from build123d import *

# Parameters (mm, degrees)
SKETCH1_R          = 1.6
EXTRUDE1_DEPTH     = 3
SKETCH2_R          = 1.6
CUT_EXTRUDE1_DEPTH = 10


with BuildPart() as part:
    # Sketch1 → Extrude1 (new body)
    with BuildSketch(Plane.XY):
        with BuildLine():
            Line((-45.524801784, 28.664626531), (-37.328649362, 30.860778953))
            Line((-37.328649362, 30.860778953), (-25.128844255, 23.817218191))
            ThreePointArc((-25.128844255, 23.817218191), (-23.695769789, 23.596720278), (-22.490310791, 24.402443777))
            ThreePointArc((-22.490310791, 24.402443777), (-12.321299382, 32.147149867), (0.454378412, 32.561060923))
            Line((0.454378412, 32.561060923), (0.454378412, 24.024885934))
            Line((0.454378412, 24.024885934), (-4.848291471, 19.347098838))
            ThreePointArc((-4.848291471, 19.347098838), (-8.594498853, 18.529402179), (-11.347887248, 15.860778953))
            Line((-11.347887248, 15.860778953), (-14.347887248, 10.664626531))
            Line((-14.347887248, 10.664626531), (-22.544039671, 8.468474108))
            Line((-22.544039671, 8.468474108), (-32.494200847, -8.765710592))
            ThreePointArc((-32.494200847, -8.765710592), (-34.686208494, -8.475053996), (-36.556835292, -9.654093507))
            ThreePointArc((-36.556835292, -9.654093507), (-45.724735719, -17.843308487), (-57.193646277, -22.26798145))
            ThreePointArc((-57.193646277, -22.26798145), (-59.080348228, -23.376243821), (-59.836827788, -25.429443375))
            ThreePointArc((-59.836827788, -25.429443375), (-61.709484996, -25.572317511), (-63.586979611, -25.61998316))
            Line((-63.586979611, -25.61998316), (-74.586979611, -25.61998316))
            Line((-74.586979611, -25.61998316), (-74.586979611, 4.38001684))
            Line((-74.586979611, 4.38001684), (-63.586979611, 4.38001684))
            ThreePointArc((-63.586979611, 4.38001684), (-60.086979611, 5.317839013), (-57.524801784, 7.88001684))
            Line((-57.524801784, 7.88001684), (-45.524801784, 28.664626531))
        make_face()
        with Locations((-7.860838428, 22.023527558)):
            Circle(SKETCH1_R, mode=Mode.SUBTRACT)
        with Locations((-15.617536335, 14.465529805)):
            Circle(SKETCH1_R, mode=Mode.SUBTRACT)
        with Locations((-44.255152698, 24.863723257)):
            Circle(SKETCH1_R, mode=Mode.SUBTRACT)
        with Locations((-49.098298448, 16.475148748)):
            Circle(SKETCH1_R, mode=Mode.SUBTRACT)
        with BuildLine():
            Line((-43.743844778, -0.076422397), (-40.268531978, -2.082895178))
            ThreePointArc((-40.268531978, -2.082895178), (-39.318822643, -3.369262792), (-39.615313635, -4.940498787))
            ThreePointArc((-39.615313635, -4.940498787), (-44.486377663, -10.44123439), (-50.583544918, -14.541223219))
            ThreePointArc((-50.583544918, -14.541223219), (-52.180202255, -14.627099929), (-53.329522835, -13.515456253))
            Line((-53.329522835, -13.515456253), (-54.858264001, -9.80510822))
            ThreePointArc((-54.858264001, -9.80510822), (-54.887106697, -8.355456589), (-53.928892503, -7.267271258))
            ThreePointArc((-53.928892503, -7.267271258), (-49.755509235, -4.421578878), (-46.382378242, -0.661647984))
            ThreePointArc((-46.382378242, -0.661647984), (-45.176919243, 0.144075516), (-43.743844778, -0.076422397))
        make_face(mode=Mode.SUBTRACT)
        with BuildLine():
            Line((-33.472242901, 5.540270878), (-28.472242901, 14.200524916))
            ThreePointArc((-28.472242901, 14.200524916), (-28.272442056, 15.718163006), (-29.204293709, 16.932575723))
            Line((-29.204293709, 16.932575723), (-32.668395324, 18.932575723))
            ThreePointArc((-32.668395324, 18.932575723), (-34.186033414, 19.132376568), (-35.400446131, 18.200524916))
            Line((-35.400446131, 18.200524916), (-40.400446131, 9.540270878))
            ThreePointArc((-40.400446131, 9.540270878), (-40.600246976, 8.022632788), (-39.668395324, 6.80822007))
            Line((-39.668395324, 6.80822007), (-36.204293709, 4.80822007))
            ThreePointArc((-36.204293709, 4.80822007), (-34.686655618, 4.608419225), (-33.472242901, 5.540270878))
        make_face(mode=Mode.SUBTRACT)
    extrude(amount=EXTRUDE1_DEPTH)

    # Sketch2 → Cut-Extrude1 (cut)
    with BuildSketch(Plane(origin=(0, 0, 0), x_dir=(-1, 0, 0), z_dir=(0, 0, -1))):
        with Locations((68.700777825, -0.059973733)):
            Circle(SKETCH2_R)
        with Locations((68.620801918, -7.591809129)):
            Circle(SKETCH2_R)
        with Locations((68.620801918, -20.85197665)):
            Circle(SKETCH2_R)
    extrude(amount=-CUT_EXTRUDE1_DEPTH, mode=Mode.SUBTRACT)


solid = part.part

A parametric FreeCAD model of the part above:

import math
import FreeCAD as App
import Part
import Sketcher
Q = App.Units.Quantity

doc = App.newDocument("Part")
body = doc.addObject("PartDesign::Body", "Body")

sketch1 = doc.addObject("Sketcher::SketchObject", "Sketch")
body.addObject(sketch1)
sketch1.AttachmentSupport = (doc.XY_Plane, [""])
sketch1.MapMode = "FlatFace"
sketch1.addGeometry(Part.LineSegment(App.Vector(-37.328649, 30.860779, 0), App.Vector(-45.524802, 28.664627, 0)), False)
sketch1.addGeometry(Part.LineSegment(App.Vector(-45.524802, 28.664627, 0), App.Vector(-57.524802, 7.880017, 0)), False)
sketch1.addGeometry(Part.ArcOfCircle(Part.Circle(App.Vector(-63.58698, 11.380017, 0), App.Vector(0, 0, 1), 7), math.radians(-90), math.radians(-30)), False)
sketch1.addGeometry(Part.LineSegment(App.Vector(-63.58698, 4.380017, 0), App.Vector(-74.58698, 4.380017, 0)), False)
sketch1.addGeometry(Part.LineSegment(App.Vector(-74.58698, 4.380017, 0), App.Vector(-74.58698, -25.619983, 0)), False)
sketch1.addGeometry(Part.LineSegment(App.Vector(-74.58698, -25.619983, 0), App.Vector(-63.58698, -25.619983, 0)), False)
sketch1.addGeometry(Part.ArcOfCircle(Part.Circle(App.Vector(-63.58698, 11.380017, 0), App.Vector(0, 0, 1), 37), math.radians(-90), math.radians(-84.182771)), False)
sketch1.addGeometry(Part.ArcOfCircle(Part.Circle(App.Vector(-56.58698, -25.460857, 0), App.Vector(0, 0, 1), 3.25), math.radians(100.758318), math.radians(179.446182)), False)
sketch1.addGeometry(Part.ArcOfCircle(Part.Circle(App.Vector(-63.58698, 11.380017, 0), App.Vector(0, 0, 1), 34.25), math.radians(-79.241682), math.radians(-37.889066)), False)
sketch1.addGeometry(Part.ArcOfCircle(Part.Circle(App.Vector(-33.991931, -11.650031, 0), App.Vector(0, 0, 1), 3.25), math.radians(62.558671), math.radians(142.110934)), False)
sketch1.addGeometry(Part.LineSegment(App.Vector(-32.494201, -8.765711, 0), App.Vector(-22.54404, 8.468474, 0)), False)
sketch1.addGeometry(Part.LineSegment(App.Vector(-22.54404, 8.468474, 0), App.Vector(-14.347887, 10.664627, 0)), False)
sketch1.addGeometry(Part.LineSegment(App.Vector(-14.347887, 10.664627, 0), App.Vector(-11.347887, 15.860779, 0)), False)
sketch1.addGeometry(Part.ArcOfCircle(Part.Circle(App.Vector(-5.285709, 12.360779, 0), App.Vector(0, 0, 1), 7), math.radians(86.417351), math.radians(150)), False)
sketch1.addGeometry(Part.LineSegment(App.Vector(-4.848291, 19.347099, 0), App.Vector(0.454378, 24.024886, 0)), False)
sketch1.addGeometry(Part.LineSegment(App.Vector(0.454378, 24.024886, 0), App.Vector(0.454378, 32.561061, 0)), False)
sketch1.addGeometry(Part.ArcOfCircle(Part.Circle(App.Vector(-5.285709, 12.360779, 0), App.Vector(0, 0, 1), 21), math.radians(74.137035), math.radians(145.011458)), False)
sketch1.addGeometry(Part.ArcOfCircle(Part.Circle(App.Vector(-24.128844, 25.549269, 0), App.Vector(0, 0, 1), 2), math.radians(-120), math.radians(-34.988542)), False)
sketch1.addGeometry(Part.LineSegment(App.Vector(-25.128844, 23.817218, 0), App.Vector(-37.328649, 30.860779, 0)), False)
sketch1.addGeometry(Part.LineSegment(App.Vector(-43.743845, -0.076422, 0), App.Vector(-40.268532, -2.082895, 0)), False)
sketch1.addGeometry(Part.ArcOfCircle(Part.Circle(App.Vector(-41.268532, -3.814946, 0), App.Vector(0, 0, 1), 2), math.radians(-34.248023), math.radians(60)), False)
sketch1.addGeometry(Part.ArcOfCircle(Part.Circle(App.Vector(-63.58698, 11.380017, 0), App.Vector(0, 0, 1), 29), math.radians(-63.35929), math.radians(-34.248023)), False)
sketch1.addGeometry(Part.ArcOfCircle(Part.Circle(App.Vector(-51.480334, -12.753551, 0), App.Vector(0, 0, 1), 2), math.radians(-157.607312), math.radians(-63.35929)), False)
sketch1.addGeometry(Part.LineSegment(App.Vector(-53.329523, -13.515456, 0), App.Vector(-54.858264, -9.805108, 0)), False)
sketch1.addGeometry(Part.ArcOfCircle(Part.Circle(App.Vector(-53.009075, -9.043203, 0), App.Vector(0, 0, 1), 2), math.radians(117.38123), math.radians(202.392688)), False)
sketch1.addGeometry(Part.ArcOfCircle(Part.Circle(App.Vector(-63.58698, 11.380017, 0), App.Vector(0, 0, 1), 21), math.radians(-62.61877), math.radians(-34.988542)), False)
sketch1.addGeometry(Part.ArcOfCircle(Part.Circle(App.Vector(-44.743845, -1.808473, 0), App.Vector(0, 0, 1), 2), math.radians(60), math.radians(145.011458)), False)
sketch1.addGeometry(Part.Circle(App.Vector(-15.617536, 14.46553, 0), App.Vector(0, 0, 1), 1.6), False)
sketch1.addGeometry(Part.Circle(App.Vector(-7.860838, 22.023528, 0), App.Vector(0, 0, 1), 1.6), False)
sketch1.addGeometry(Part.ArcOfCircle(Part.Circle(App.Vector(-35.204294, 6.540271, 0), App.Vector(0, 0, 1), 2), math.radians(-120), math.radians(-30)), False)
sketch1.addGeometry(Part.LineSegment(App.Vector(-36.204294, 4.80822, 0), App.Vector(-39.668395, 6.80822, 0)), False)
sketch1.addGeometry(Part.ArcOfCircle(Part.Circle(App.Vector(-38.668395, 8.540271, 0), App.Vector(0, 0, 1), 2), math.radians(150), math.radians(240)), False)
sketch1.addGeometry(Part.LineSegment(App.Vector(-40.400446, 9.540271, 0), App.Vector(-35.400446, 18.200525, 0)), False)
sketch1.addGeometry(Part.ArcOfCircle(Part.Circle(App.Vector(-33.668395, 17.200525, 0), App.Vector(0, 0, 1), 2), math.radians(60), math.radians(150)), False)
sketch1.addGeometry(Part.LineSegment(App.Vector(-32.668395, 18.932576, 0), App.Vector(-29.204294, 16.932576, 0)), False)
sketch1.addGeometry(Part.ArcOfCircle(Part.Circle(App.Vector(-30.204294, 15.200525, 0), App.Vector(0, 0, 1), 2), math.radians(-30), math.radians(60)), False)
sketch1.addGeometry(Part.LineSegment(App.Vector(-28.472243, 14.200525, 0), App.Vector(-33.472243, 5.540271, 0)), False)
sketch1.addGeometry(Part.Circle(App.Vector(-49.098298, 16.475149, 0), App.Vector(0, 0, 1), 1.6), False)
sketch1.addGeometry(Part.Circle(App.Vector(-44.255153, 24.863723, 0), App.Vector(0, 0, 1), 1.6), False)
sketch1.addConstraint(Sketcher.Constraint("Coincident", 0, 2, 1, 1))
sketch1.addConstraint(Sketcher.Constraint("Coincident", 1, 2, 2, 2))
sketch1.addConstraint(Sketcher.Constraint("Coincident", 2, 1, 3, 1))
sketch1.addConstraint(Sketcher.Constraint("Coincident", 3, 2, 4, 1))
sketch1.addConstraint(Sketcher.Constraint("Coincident", 4, 2, 5, 1))
sketch1.addConstraint(Sketcher.Constraint("Coincident", 5, 2, 6, 1))
sketch1.addConstraint(Sketcher.Constraint("Coincident", 6, 2, 7, 2))
sketch1.addConstraint(Sketcher.Constraint("Coincident", 7, 1, 8, 1))
sketch1.addConstraint(Sketcher.Constraint("Coincident", 8, 2, 9, 2))
sketch1.addConstraint(Sketcher.Constraint("Coincident", 9, 1, 10, 1))
sketch1.addConstraint(Sketcher.Constraint("Coincident", 10, 2, 11, 1))
sketch1.addConstraint(Sketcher.Constraint("Coincident", 11, 2, 12, 1))
sketch1.addConstraint(Sketcher.Constraint("Coincident", 12, 2, 13, 2))
sketch1.addConstraint(Sketcher.Constraint("Coincident", 13, 1, 14, 1))
sketch1.addConstraint(Sketcher.Constraint("Coincident", 14, 2, 15, 1))
sketch1.addConstraint(Sketcher.Constraint("Coincident", 15, 2, 16, 1))
sketch1.addConstraint(Sketcher.Constraint("Coincident", 16, 2, 17, 2))
sketch1.addConstraint(Sketcher.Constraint("Coincident", 17, 1, 18, 1))
sketch1.addConstraint(Sketcher.Constraint("Coincident", 18, 2, 0, 1))
sketch1.addConstraint(Sketcher.Constraint("Coincident", 19, 2, 20, 2))
sketch1.addConstraint(Sketcher.Constraint("Coincident", 20, 1, 21, 2))
sketch1.addConstraint(Sketcher.Constraint("Coincident", 21, 1, 22, 2))
sketch1.addConstraint(Sketcher.Constraint("Coincident", 22, 1, 23, 1))
sketch1.addConstraint(Sketcher.Constraint("Coincident", 23, 2, 24, 2))
sketch1.addConstraint(Sketcher.Constraint("Coincident", 24, 1, 25, 1))
sketch1.addConstraint(Sketcher.Constraint("Coincident", 25, 2, 26, 2))
sketch1.addConstraint(Sketcher.Constraint("Coincident", 26, 1, 19, 1))
sketch1.addConstraint(Sketcher.Constraint("Coincident", 29, 1, 30, 1))
sketch1.addConstraint(Sketcher.Constraint("Coincident", 30, 2, 31, 2))
sketch1.addConstraint(Sketcher.Constraint("Coincident", 31, 1, 32, 1))
sketch1.addConstraint(Sketcher.Constraint("Coincident", 32, 2, 33, 2))
sketch1.addConstraint(Sketcher.Constraint("Coincident", 33, 1, 34, 1))
sketch1.addConstraint(Sketcher.Constraint("Coincident", 34, 2, 35, 2))
sketch1.addConstraint(Sketcher.Constraint("Coincident", 35, 1, 36, 1))
sketch1.addConstraint(Sketcher.Constraint("Coincident", 36, 2, 29, 2))
sketch1.addConstraint(Sketcher.Constraint("Horizontal", 3))
sketch1.addConstraint(Sketcher.Constraint("Vertical", 4))
sketch1.addConstraint(Sketcher.Constraint("Horizontal", 5))
sketch1.addConstraint(Sketcher.Constraint("Vertical", 15))
sketch1.addConstraint(Sketcher.Constraint("Coincident", 6, 3, 2, 3))
sketch1.addConstraint(Sketcher.Constraint("Coincident", 8, 3, 2, 3))
sketch1.addConstraint(Sketcher.Constraint("Coincident", 16, 3, 13, 3))
sketch1.addConstraint(Sketcher.Constraint("Coincident", 21, 3, 2, 3))
sketch1.addConstraint(Sketcher.Constraint("Coincident", 25, 3, 2, 3))
sketch1.addConstraint(Sketcher.Constraint("Radius", 2, Q("7 mm")))
sketch1.addConstraint(Sketcher.Constraint("Radius", 6, Q("37 mm")))
sketch1.addConstraint(Sketcher.Constraint("Radius", 13, Q("7 mm")))
sketch1.addConstraint(Sketcher.Constraint("Radius", 16, Q("21 mm")))
sketch1.addConstraint(Sketcher.Constraint("Radius", 17, Q("2 mm")))
sketch1.addConstraint(Sketcher.Constraint("Radius", 20, Q("2 mm")))
sketch1.addConstraint(Sketcher.Constraint("Radius", 21, Q("29 mm")))
sketch1.addConstraint(Sketcher.Constraint("Radius", 22, Q("2 mm")))
sketch1.addConstraint(Sketcher.Constraint("Radius", 24, Q("2 mm")))
sketch1.addConstraint(Sketcher.Constraint("Radius", 25, Q("21 mm")))
sketch1.addConstraint(Sketcher.Constraint("Radius", 26, Q("2 mm")))
sketch1.addConstraint(Sketcher.Constraint("Radius", 29, Q("2 mm")))
sketch1.addConstraint(Sketcher.Constraint("Radius", 31, Q("2 mm")))
sketch1.addConstraint(Sketcher.Constraint("Radius", 33, Q("2 mm")))
sketch1.addConstraint(Sketcher.Constraint("Radius", 35, Q("2 mm")))
sketch1.addConstraint(Sketcher.Constraint("Diameter", 27, Q("3.2 mm")))
sketch1.addConstraint(Sketcher.Constraint("Diameter", 28, Q("3.2 mm")))
sketch1.addConstraint(Sketcher.Constraint("Diameter", 37, Q("3.2 mm")))
sketch1.addConstraint(Sketcher.Constraint("Diameter", 38, Q("3.2 mm")))
sketch1.addConstraint(Sketcher.Constraint("DistanceX", 3, 2, 3, 1, Q("11 mm")))
sketch1.addConstraint(Sketcher.Constraint("DistanceX", 5, 1, 5, 2, Q("11 mm")))
sketch1.addConstraint(Sketcher.Constraint("Radius", 7, Q("3.25 mm")))
sketch1.addConstraint(Sketcher.Constraint("Radius", 8, Q("34.25 mm")))
sketch1.addConstraint(Sketcher.Constraint("Radius", 9, Q("3.25 mm")))
sketch1.addConstraint(Sketcher.Constraint("Distance", 1, Q("24 mm")))
sketch1.addConstraint(Sketcher.Constraint("Distance", 12, Q("6 mm")))
sketch1.addConstraint(Sketcher.Constraint("Distance", 30, Q("4 mm")))
sketch1.addConstraint(Sketcher.Constraint("Distance", 32, Q("10 mm")))
sketch1.addConstraint(Sketcher.Constraint("Distance", 34, Q("4 mm")))
sketch1.addConstraint(Sketcher.Constraint("Distance", 36, Q("10 mm")))
sketch1.addConstraint(Sketcher.Constraint("DistanceX", 6, 3, 7, 3, Q("7 mm")))
sketch1.addConstraint(Sketcher.Constraint("DistanceY", 29, 3, 31, 3, Q("2 mm")))
sketch1.addConstraint(Sketcher.Constraint("DistanceX", 31, 3, 33, 3, Q("5 mm")))
sketch1.addConstraint(Sketcher.Constraint("DistanceY", 35, 3, 33, 3, Q("2 mm")))
sketch1.addConstraint(Sketcher.Constraint("DistanceX", 29, 3, 35, 3, Q("5 mm")))
sketch1.addConstraint(Sketcher.Constraint("DistanceX", 3, 2, 6, 3, Q("11 mm")))
sketch1.addConstraint(Sketcher.Constraint("DistanceX", 11, 2, 12, 2, Q("3 mm")))
sketch1.addConstraint(Sketcher.Constraint("DistanceX", 17, 1, 17, 3, Q("1 mm")))
sketch1.addConstraint(Sketcher.Constraint("DistanceX", 20, 3, 19, 2, Q("1 mm")))
sketch1.addConstraint(Sketcher.Constraint("DistanceX", 26, 3, 26, 1, Q("1 mm")))
sketch1.addConstraint(Sketcher.Constraint("DistanceX", 29, 1, 29, 3, Q("1 mm")))
sketch1.addConstraint(Sketcher.Constraint("DistanceX", 30, 2, 31, 3, Q("1 mm")))
sketch1.addConstraint(Sketcher.Constraint("DistanceY", 31, 3, 31, 1, Q("1 mm")))
sketch1.addConstraint(Sketcher.Constraint("DistanceY", 33, 3, 32, 2, Q("1 mm")))
sketch1.addConstraint(Sketcher.Constraint("DistanceX", 33, 3, 33, 1, Q("1 mm")))
sketch1.addConstraint(Sketcher.Constraint("DistanceY", 35, 1, 35, 3, Q("1 mm")))
sketch1.addConstraint(Sketcher.Constraint("DistanceY", 1, 2, 6, 3, Q("3.5 mm")))
sketch1.addConstraint(Sketcher.Constraint("DistanceY", 13, 3, 12, 2, Q("3.5 mm")))
sketch1.addConstraint(Sketcher.Constraint("DistanceY", 29, 3, 17, 3, Q("19.008998 mm")))
sketch1.addConstraint(Sketcher.Constraint("DistanceY", 26, 3, 33, 3, Q("19.008998 mm")))
sketch1.addConstraint(Sketcher.Constraint("DistanceY", 5, 2, 7, 1, Q("3.352002 mm")))
sketch1.addConstraint(Sketcher.Constraint("DistanceX", 37, 3, -1, 1, Q("49.098298 mm")))
sketch1.addConstraint(Sketcher.Constraint("DistanceX", 0, 2, -1, 1, Q("45.524802 mm")))
sketch1.addConstraint(Sketcher.Constraint("DistanceX", 1, 2, -1, 1, Q("57.524802 mm")))
sketch1.addConstraint(Sketcher.Constraint("DistanceX", 9, 1, -1, 1, Q("32.494201 mm")))
sketch1.addConstraint(Sketcher.Constraint("DistanceY", -1, 1, 13, 1, Q("19.347099 mm")))
sketch1.addConstraint(Sketcher.Constraint("DistanceY", 20, 1, -1, 1, Q("4.940499 mm")))
sketch1.addConstraint(Sketcher.Constraint("DistanceY", 9, 3, 17, 3, Q("37.1993 mm")))
sketch1.addConstraint(Sketcher.Constraint("DistanceX", 20, 3, 9, 3, Q("7.276601 mm")))
sketch1.addConstraint(Sketcher.Constraint("DistanceX", 22, 3, 20, 3, Q("10.211802 mm")))
sketch1.addConstraint(Sketcher.Constraint("DistanceY", 33, 3, 38, 3, Q("7.663198 mm")))
sketch1.addConstraint(Sketcher.Constraint("DistanceY", 33, 3, 0, 2, Q("11.464102 mm")))
sketch1.addConstraint(Sketcher.Constraint("DistanceX", 22, 3, 8, 2, Q("14.923498 mm")))
sketch1.addConstraint(Sketcher.Constraint("DistanceY", 11, 2, 28, 3, Q("11.358901 mm")))
sketch1.addConstraint(Sketcher.Constraint("DistanceX", 7, 1, 21, 1, Q("6.610101 mm")))
sketch1.addConstraint(Sketcher.Constraint("DistanceY", 7, 3, 22, 1, Q("11.945401 mm")))
sketch1.addConstraint(Sketcher.Constraint("DistanceY", 20, 3, 25, 2, Q("3.153298 mm")))
sketch1.addConstraint(Sketcher.Constraint("DistanceX", 26, 1, 31, 1, Q("3.343399 mm")))
sketch1.addConstraint(Sketcher.Constraint("Distance", 0, Q("8.485281 mm")))
sketch1.addConstraint(Sketcher.Constraint("Distance", 11, Q("8.485281 mm")))
sketch1.addConstraint(Sketcher.Constraint("Distance", 18, Q("14.087122 mm")))
sketch1.addConstraint(Sketcher.Constraint("DistanceY", 15, 1, 15, 2, Q("8.536175 mm")))
sketch1.addConstraint(Sketcher.Constraint("DistanceY", 9, 3, -1, 1, Q("11.650031 mm")))
sketch1.addConstraint(Sketcher.Constraint("DistanceX", 13, 3, -1, 1, Q("5.285709 mm")))
sketch1.addConstraint(Sketcher.Constraint("DistanceY", -1, 1, 13, 3, Q("12.360779 mm")))
sketch1.addConstraint(Sketcher.Constraint("DistanceY", -1, 1, 27, 3, Q("14.46553 mm")))
sketch1.addConstraint(Sketcher.Constraint("DistanceX", 28, 3, -1, 1, Q("7.860838 mm")))
sketch1.addConstraint(Sketcher.Constraint("DistanceY", -1, 1, 37, 3, Q("16.475149 mm")))
sketch1.addConstraint(Sketcher.Constraint("DistanceX", 10, 2, -1, 1, Q("22.54404 mm")))
sketch1.addConstraint(Sketcher.Constraint("DistanceX", -1, 1, 14, 2, Q("0.454378 mm")))
sketch1.addConstraint(Sketcher.Constraint("DistanceX", 16, 2, -1, 1, Q("22.490311 mm")))
sketch1.addConstraint(Sketcher.Constraint("DistanceY", 23, 2, -1, 1, Q("9.805108 mm")))
sketch1.addConstraint(Sketcher.Constraint("DistanceY", 24, 1, -1, 1, Q("7.267271 mm")))
sketch1.addConstraint(Sketcher.Constraint("DistanceX", 24, 3, 22, 3, Q("1.528741 mm")))
sketch1.addConstraint(Sketcher.Constraint("DistanceX", 33, 3, 27, 3, Q("18.050859 mm")))
sketch1.addConstraint(Sketcher.Constraint("DistanceX", 38, 3, 35, 3, Q("14.050859 mm")))
pad1 = doc.addObject("PartDesign::Pad", "Pad")
body.addObject(pad1)
pad1.Profile = sketch1
pad1.Length = 3

sketch2 = doc.addObject("Sketcher::SketchObject", "Sketch001")
body.addObject(sketch2)
sketch2.AttachmentSupport = (doc.XY_Plane, [""])
sketch2.MapMode = "FlatFace"
sketch2.addGeometry(Part.Circle(App.Vector(-68.7, -0.1, 0), App.Vector(0, 0, 1), 1.6), False)
sketch2.addGeometry(Part.Circle(App.Vector(-68.6, -7.6, 0), App.Vector(0, 0, 1), 1.6), False)
sketch2.addGeometry(Part.Circle(App.Vector(-68.6, -20.9, 0), App.Vector(0, 0, 1), 1.6), False)
sketch2.addConstraint(Sketcher.Constraint("Equal", 0, 1))
sketch2.addConstraint(Sketcher.Constraint("Equal", 1, 2))
sketch2.addConstraint(Sketcher.Constraint("Vertical", 1, 3, 2, 3))
sketch2.addConstraint(Sketcher.Constraint("Diameter", 0, Q("3.2 mm")))
sketch2.addConstraint(Sketcher.Constraint("DistanceX", 1, 3, -1, 1, Q("68.620802 mm")))
sketch2.addConstraint(Sketcher.Constraint("DistanceY", 1, 3, -1, 1, Q("7.591809 mm")))
sketch2.addConstraint(Sketcher.Constraint("DistanceX", 0, 3, -1, 1, Q("68.700778 mm")))
sketch2.addConstraint(Sketcher.Constraint("DistanceY", 0, 3, -1, 1, Q("0.059974 mm")))
sketch2.addConstraint(Sketcher.Constraint("DistanceY", 2, 3, -1, 1, Q("20.851977 mm")))
pocket1 = doc.addObject("PartDesign::Pocket", "Pocket")
body.addObject(pocket1)
pocket1.Profile = sketch2
pocket1.Length = 10
pocket1.Reversed = True

doc.recompute()
